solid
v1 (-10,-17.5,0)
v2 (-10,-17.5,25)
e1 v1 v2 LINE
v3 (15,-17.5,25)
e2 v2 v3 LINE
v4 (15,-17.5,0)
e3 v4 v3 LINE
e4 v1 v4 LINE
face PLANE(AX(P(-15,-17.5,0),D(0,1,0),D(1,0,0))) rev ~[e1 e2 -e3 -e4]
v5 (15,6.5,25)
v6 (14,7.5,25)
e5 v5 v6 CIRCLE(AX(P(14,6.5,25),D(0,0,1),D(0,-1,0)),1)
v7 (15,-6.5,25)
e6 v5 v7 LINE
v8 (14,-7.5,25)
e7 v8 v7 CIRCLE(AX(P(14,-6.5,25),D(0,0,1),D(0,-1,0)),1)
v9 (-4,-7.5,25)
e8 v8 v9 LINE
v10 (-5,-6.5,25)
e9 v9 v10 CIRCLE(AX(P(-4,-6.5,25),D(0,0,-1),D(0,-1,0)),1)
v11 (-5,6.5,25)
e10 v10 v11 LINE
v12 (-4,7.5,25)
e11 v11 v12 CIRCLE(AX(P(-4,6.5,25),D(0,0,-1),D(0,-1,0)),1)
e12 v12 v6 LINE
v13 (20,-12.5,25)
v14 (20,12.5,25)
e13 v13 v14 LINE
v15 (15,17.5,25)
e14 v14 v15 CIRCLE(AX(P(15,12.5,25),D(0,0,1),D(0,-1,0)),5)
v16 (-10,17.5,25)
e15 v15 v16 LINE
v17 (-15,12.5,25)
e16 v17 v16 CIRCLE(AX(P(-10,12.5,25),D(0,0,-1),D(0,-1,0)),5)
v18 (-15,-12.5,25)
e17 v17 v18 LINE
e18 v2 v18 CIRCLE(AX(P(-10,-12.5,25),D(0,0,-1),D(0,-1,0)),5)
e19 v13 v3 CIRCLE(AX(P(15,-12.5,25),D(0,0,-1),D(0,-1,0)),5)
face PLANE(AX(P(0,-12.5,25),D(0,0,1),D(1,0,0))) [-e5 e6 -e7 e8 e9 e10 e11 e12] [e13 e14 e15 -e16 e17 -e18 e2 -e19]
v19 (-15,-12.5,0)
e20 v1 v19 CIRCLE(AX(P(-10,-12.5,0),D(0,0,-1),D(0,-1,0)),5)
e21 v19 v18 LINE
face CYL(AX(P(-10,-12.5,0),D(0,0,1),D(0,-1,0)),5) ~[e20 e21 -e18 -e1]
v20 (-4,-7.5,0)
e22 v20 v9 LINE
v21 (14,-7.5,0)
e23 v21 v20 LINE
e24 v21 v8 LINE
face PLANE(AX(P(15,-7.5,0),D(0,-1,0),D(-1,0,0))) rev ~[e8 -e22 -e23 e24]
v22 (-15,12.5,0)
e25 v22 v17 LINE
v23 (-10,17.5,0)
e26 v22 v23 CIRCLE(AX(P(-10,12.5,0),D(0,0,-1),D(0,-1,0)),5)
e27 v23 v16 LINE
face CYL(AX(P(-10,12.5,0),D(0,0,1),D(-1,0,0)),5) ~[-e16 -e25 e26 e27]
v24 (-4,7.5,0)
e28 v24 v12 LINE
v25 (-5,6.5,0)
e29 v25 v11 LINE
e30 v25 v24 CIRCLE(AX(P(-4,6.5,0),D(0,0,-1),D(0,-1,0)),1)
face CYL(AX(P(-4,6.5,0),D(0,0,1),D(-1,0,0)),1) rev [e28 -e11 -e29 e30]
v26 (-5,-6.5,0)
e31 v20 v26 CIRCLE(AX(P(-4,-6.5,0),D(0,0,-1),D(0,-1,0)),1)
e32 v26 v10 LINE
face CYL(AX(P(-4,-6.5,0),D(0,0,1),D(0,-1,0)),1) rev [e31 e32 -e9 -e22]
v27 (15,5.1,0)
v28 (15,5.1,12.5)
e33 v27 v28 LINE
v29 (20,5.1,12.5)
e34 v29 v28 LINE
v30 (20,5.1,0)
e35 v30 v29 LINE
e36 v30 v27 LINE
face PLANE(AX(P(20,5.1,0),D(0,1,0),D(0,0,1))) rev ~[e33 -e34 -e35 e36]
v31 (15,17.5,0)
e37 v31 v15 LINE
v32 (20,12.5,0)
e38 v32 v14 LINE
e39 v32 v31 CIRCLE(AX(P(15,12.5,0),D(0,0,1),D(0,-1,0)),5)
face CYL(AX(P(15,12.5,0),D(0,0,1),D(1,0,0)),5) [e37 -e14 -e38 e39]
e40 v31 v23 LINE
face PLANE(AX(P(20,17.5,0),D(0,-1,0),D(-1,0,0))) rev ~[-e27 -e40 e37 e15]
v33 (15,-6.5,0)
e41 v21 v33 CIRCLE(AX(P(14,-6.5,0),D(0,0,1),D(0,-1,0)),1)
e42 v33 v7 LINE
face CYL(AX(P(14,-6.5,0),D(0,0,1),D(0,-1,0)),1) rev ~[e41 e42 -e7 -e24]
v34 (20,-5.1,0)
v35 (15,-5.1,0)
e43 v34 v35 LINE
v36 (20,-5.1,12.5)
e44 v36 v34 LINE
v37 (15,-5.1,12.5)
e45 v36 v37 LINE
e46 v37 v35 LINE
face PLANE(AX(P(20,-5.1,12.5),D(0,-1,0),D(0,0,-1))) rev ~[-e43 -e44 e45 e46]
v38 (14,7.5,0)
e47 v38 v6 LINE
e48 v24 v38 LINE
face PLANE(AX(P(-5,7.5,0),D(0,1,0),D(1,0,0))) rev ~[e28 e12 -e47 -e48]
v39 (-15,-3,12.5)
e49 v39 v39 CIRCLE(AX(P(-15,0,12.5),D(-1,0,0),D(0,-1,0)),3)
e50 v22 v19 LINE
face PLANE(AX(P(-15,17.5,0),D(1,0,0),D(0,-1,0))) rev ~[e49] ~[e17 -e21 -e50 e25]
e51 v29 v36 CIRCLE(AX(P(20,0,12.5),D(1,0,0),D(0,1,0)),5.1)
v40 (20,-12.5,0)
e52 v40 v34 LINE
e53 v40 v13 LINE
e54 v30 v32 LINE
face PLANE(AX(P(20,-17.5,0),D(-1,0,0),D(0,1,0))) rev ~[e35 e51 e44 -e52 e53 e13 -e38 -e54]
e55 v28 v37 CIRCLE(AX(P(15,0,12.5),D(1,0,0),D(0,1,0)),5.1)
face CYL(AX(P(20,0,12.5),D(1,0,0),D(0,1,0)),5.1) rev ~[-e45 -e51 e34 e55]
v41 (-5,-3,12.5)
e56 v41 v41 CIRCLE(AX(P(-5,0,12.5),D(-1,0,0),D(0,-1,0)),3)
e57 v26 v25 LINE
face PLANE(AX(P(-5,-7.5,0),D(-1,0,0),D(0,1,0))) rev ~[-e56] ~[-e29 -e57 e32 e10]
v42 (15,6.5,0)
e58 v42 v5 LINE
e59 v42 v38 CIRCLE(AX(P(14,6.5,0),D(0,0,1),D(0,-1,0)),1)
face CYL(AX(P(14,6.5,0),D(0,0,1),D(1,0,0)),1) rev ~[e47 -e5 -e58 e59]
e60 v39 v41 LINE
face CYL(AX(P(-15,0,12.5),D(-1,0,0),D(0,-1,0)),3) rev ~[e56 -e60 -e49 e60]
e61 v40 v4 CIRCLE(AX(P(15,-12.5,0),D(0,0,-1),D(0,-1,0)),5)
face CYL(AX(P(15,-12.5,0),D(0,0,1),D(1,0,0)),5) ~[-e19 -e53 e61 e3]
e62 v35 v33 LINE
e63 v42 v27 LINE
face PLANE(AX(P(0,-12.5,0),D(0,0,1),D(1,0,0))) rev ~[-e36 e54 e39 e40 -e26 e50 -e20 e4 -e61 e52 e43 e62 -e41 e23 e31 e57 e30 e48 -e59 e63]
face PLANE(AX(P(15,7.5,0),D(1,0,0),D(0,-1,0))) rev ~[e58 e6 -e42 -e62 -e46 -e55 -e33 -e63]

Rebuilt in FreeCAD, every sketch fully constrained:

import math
import FreeCAD as App
import Part
import Sketcher

V = App.Vector


def edges_at(feature, points):
    """Names of the edges that pass closest to the given points."""
    edges = feature.Shape.Edges
    near = lambda p: min(range(len(edges)), key=lambda i: edges[i].distToShape(Part.Vertex(*p))[0])
    return sorted({f"Edge{near(p) + 1}" for p in points})


def add_polygon(sketch, points):
    """Adds a closed chain of lines whose ends are joined by coincident constraints."""
    first, n = sketch.GeometryCount, len(points)
    for a, b in zip(points, points[1:] + points[:1]):
        sketch.addGeometry(Part.LineSegment(App.Vector(*a, 0), App.Vector(*b, 0)), False)
    for i in range(n):
        sketch.addConstraint(Sketcher.Constraint("Coincident", first + i, 2, first + (i + 1) % n, 1))

doc = App.newDocument("Part")
body = doc.addObject("PartDesign::Body", "Body")

sketch1 = body.newObject("Sketcher::SketchObject", "Sketch")
sketch1.AttachmentSupport = (doc.getObject("XY_Plane"), [""])
sketch1.MapMode = "FlatFace"
add_polygon(sketch1, [(20, 18), (-15, 18), (-15, -18), (20, -18)])
add_polygon(sketch1, [(15, -8), (-5, -8), (-5, 8), (15, 8)])
sketch1.addConstraint([
    Sketcher.Constraint("Horizontal", 0),
    Sketcher.Constraint("Vertical", 1),
    Sketcher.Constraint("Horizontal", 2),
    Sketcher.Constraint("Vertical", 3),
    Sketcher.Constraint("Horizontal", 4),
    Sketcher.Constraint("Vertical", 5),
    Sketcher.Constraint("Horizontal", 6),
    Sketcher.Constraint("Vertical", 7),
    Sketcher.Constraint("Equal", 2, 1),
    Sketcher.Constraint("DistanceX", 0, 2, 0, 1, 35.0),
    Sketcher.Constraint("DistanceX", 4, 2, 4, 1, 20.0),
    Sketcher.Constraint("DistanceY", 5, 1, 5, 2, 15.0),
    Sketcher.Constraint("DistanceX", 0, 2, -1, 1, 15.0),
    Sketcher.Constraint("DistanceX", 4, 2, -1, 1, 5.0),
    Sketcher.Constraint("DistanceY", 1, 2, 4, 2, 10.0),
    Sketcher.Constraint("DistanceY", -1, 1, 0, 2, 17.5),
])
pad1 = body.newObject("PartDesign::Pad", "Pad")
pad1.Profile = sketch1
pad1.Length = 25

sketch2 = body.newObject("Sketcher::SketchObject", "Sketch001")
sketch2.AttachmentSupport = (doc.getObject("YZ_Plane"), [""])
sketch2.MapMode = "FlatFace"
sketch2.AttachmentOffset = App.Placement(V(0, 0, 20), App.Rotation())
sketch2.addGeometry([
    Part.ArcOfCircle(Part.Circle(V(0, 12, 0), V(0, 0, 1), 5), math.radians(0), math.radians(180)),
    Part.LineSegment(V(-5, 12, 0), V(-5, 0, 0)),
    Part.LineSegment(V(-5, 0, 0), V(5, 0, 0)),
    Part.LineSegment(V(5, 0, 0), V(5, 12, 0)),
], False)
sketch2.addConstraint([
    Sketcher.Constraint("Tangent", 0, 2, 1, 1),
    Sketcher.Constraint("Coincident", 1, 2, 2, 1),
    Sketcher.Constraint("Coincident", 2, 2, 3, 1),
    Sketcher.Constraint("Tangent", 3, 2, 0, 1),
    Sketcher.Constraint("Vertical", 1),
    Sketcher.Constraint("Horizontal", 2),
    Sketcher.Constraint("Vertical", 3),
    Sketcher.Constraint("Symmetric", 1, 2, 2, 2, -1, 1),
    Sketcher.Constraint("Radius", 0, 5.1),
    Sketcher.Constraint("DistanceY", 1, 2, 1, 1, 12.5),
])
pocket1 = body.newObject("PartDesign::Pocket", "Pocket")
pocket1.Profile = sketch2
pocket1.Length = 15

sketch3 = body.newObject("Sketcher::SketchObject", "Sketch002")
sketch3.AttachmentSupport = (doc.getObject("YZ_Plane"), [""])
sketch3.MapMode = "FlatFace"
sketch3.AttachmentOffset = App.Placement(V(0, 0, -15), App.Rotation())
sketch3.addGeometry(Part.Circle(V(0, 12.5, 0), V(0, 0, 1), 3), False)
sketch3.addConstraint([
    Sketcher.Constraint("PointOnObject", 0, 3, -2),
    Sketcher.Constraint("Diameter", 0, 6.0),
    Sketcher.Constraint("DistanceY", -1, 1, 0, 3, 12.5),
])
pocket2 = body.newObject("PartDesign::Pocket", "Pocket001")
pocket2.Profile = sketch3
pocket2.Length = 25
pocket2.Reversed = True
doc.recompute()

fillet = body.newObject("PartDesign::Fillet", "Fillet")
fillet.Base = (pocket2, edges_at(pocket2, [
    (15, -7.5, 12.5),
    (15, 7.5, 12.5),
    (-5, -7.5, 12.5),
    (-5, 7.5, 12.5),
]))
fillet.Radius = 1
doc.recompute()

fillet2 = body.newObject("PartDesign::Fillet", "Fillet001")
fillet2.Base = (fillet, edges_at(fillet, [
    (20, 17.5, 12.5),
    (20, -17.5, 12.5),
    (-15, -17.5, 12.5),
    (-15, 17.5, 12.5),
]))
fillet2.Radius = 5

doc.recompute()
